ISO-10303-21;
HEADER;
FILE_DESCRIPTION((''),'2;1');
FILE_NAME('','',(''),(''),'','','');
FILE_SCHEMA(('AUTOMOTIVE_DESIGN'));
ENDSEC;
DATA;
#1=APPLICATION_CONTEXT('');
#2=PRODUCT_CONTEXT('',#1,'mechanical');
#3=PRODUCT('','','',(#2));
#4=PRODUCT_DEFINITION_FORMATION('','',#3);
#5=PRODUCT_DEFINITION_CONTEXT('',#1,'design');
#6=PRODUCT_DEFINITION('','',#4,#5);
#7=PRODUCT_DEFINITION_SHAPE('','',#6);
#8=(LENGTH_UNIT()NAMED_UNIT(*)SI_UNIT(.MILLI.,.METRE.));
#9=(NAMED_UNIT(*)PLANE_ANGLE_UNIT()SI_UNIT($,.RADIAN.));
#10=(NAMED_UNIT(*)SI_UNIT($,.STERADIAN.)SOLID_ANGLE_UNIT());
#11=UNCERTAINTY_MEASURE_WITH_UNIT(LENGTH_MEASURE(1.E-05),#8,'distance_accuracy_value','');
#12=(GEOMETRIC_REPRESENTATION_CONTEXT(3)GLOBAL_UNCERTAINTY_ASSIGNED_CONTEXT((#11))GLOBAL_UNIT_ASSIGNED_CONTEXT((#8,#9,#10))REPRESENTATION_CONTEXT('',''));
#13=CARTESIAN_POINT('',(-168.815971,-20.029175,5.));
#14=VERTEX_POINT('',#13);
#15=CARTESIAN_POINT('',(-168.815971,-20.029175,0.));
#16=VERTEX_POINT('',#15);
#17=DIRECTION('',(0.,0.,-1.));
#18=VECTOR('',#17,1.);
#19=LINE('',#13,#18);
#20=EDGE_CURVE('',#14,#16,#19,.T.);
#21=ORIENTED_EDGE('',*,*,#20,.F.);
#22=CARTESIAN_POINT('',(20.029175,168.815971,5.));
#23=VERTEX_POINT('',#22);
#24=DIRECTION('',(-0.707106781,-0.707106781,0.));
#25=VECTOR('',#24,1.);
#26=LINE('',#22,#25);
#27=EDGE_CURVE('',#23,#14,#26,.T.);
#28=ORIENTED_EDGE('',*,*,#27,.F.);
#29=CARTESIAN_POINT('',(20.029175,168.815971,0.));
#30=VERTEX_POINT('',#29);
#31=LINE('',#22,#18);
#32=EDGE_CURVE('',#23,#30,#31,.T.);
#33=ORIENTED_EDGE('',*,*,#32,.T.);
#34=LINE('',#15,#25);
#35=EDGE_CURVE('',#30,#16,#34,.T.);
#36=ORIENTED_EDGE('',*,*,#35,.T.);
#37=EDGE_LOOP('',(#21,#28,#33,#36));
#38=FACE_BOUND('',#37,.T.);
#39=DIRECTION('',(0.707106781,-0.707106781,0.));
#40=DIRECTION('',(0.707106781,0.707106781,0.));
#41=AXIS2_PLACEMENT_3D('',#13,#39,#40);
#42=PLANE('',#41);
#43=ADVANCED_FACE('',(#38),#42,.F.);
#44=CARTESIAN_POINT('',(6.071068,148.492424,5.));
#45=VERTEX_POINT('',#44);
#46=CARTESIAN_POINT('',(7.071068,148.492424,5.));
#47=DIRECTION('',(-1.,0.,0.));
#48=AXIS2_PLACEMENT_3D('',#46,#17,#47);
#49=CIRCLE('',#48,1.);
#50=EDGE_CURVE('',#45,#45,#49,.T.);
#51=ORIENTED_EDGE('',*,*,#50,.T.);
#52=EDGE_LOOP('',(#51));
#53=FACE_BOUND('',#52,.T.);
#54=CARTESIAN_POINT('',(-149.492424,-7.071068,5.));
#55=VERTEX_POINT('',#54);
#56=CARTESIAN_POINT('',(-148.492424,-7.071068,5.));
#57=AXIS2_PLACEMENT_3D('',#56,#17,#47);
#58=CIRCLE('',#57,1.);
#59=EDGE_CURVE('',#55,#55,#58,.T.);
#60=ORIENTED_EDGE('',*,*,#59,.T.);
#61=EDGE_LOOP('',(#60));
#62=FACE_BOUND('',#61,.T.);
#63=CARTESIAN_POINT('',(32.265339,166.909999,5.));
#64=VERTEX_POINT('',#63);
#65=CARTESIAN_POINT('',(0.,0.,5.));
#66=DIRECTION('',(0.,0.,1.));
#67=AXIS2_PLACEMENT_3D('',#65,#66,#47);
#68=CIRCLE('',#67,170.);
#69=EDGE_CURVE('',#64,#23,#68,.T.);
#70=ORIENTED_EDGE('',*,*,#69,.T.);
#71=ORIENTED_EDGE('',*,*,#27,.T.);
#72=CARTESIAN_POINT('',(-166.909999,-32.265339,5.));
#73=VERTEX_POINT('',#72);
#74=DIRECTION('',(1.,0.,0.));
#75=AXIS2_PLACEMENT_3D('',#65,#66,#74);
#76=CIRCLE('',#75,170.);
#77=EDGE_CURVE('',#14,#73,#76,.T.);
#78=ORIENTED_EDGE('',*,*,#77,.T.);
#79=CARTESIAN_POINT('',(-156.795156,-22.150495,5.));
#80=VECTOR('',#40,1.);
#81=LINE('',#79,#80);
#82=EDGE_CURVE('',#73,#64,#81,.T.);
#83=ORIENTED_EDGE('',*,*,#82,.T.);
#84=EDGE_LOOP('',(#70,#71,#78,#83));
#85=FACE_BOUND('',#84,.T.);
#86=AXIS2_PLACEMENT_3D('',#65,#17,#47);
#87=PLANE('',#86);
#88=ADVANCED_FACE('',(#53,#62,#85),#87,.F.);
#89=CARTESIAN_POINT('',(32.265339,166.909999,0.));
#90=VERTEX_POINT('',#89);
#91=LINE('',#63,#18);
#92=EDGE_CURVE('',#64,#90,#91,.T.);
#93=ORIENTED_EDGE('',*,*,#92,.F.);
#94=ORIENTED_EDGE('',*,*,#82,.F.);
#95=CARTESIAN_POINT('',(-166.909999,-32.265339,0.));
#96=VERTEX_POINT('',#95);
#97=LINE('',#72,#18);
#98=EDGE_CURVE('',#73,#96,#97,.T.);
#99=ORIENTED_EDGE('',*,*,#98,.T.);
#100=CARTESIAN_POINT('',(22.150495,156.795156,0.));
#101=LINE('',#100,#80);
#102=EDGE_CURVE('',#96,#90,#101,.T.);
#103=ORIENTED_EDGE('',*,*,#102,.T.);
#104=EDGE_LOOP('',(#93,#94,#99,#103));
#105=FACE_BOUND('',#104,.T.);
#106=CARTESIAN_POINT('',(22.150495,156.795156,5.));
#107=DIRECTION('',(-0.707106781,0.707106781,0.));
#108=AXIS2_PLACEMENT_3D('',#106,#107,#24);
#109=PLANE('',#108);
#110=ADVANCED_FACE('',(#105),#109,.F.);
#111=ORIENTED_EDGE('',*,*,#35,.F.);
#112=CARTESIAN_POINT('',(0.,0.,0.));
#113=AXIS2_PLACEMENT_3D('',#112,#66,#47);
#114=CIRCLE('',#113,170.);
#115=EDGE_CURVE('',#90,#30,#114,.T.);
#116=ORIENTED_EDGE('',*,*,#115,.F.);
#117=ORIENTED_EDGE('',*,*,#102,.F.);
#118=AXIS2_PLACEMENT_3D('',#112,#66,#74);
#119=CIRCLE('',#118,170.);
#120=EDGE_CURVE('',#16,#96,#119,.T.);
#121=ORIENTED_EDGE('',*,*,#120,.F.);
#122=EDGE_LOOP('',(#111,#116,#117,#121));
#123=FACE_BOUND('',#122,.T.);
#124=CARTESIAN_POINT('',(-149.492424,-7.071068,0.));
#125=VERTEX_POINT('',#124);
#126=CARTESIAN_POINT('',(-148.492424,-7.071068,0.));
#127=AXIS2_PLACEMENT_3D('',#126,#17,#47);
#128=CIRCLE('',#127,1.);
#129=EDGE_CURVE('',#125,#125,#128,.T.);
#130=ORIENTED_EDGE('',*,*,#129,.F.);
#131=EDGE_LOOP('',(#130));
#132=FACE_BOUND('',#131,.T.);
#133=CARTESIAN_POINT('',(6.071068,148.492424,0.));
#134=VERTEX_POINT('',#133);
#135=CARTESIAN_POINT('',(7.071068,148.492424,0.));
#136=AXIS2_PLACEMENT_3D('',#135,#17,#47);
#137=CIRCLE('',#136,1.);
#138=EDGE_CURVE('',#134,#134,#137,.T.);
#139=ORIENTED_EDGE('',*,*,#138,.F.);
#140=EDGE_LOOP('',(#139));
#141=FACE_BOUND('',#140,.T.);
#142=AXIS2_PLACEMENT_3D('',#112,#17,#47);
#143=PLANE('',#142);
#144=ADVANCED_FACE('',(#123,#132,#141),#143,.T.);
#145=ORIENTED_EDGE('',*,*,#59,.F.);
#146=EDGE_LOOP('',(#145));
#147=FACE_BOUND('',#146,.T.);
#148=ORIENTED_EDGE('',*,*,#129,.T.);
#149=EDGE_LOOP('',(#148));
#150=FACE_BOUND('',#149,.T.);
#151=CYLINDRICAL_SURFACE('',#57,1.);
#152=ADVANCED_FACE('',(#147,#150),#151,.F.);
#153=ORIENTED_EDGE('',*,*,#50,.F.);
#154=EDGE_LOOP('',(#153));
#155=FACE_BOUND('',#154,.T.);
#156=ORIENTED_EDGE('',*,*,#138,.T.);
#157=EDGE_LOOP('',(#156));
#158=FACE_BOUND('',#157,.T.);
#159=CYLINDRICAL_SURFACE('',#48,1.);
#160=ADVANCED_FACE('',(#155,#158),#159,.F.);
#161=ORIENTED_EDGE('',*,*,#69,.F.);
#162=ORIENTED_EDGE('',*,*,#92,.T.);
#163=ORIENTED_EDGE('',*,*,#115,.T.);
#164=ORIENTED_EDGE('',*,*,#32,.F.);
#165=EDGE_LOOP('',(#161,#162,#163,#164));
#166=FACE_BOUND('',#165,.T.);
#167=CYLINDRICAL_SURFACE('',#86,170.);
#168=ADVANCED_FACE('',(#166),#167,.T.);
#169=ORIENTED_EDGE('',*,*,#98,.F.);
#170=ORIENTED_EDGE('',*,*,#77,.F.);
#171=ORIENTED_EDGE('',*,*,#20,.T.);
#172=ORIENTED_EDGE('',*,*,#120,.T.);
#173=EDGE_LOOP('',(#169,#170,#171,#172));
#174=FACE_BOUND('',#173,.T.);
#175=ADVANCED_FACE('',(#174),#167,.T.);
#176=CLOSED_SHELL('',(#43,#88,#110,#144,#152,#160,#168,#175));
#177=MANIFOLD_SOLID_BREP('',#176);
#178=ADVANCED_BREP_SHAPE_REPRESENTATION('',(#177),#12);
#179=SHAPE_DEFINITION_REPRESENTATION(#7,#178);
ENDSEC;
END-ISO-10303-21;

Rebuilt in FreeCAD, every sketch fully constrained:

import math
import FreeCAD as App
import Part
import Sketcher
from FreeCAD import Vector
Q = App.Units.Quantity

doc = App.newDocument("Part")
body = doc.addObject("PartDesign::Body", "Body")

sketch1 = body.newObject("Sketcher::SketchObject", "Sketch")
sketch1.AttachmentSupport = (doc.getObject("XY_Plane"), [""])
sketch1.MapMode = "FlatFace"
sketch1.addGeometry([
    Part.LineSegment(Vector(20, 169, 0), Vector(15, 164, 0)),
    Part.LineSegment(Vector(15, 164, 0), Vector(-164, -15, 0)),
    Part.LineSegment(Vector(-164, -15, 0), Vector(-169, -20, 0)),
    Part.ArcOfCircle(Part.Circle(Vector(0, 0, 0), Vector(0, 0, 1), 170), math.radians(-173.23), math.radians(-169.06)),
    Part.LineSegment(Vector(-167, -32, 0), Vector(32, 167, 0)),
    Part.ArcOfCircle(Part.Circle(Vector(0, 0, 0), Vector(0, 0, 1), 170), math.radians(79.06), math.radians(83.23)),
], False)
sketch1.addConstraint([
    Sketcher.Constraint("Coincident", 0, 2, 1, 1),
    Sketcher.Constraint("Coincident", 1, 2, 2, 1),
    Sketcher.Constraint("Coincident", 2, 2, 3, 1),
    Sketcher.Constraint("Coincident", 3, 2, 4, 1),
    Sketcher.Constraint("Coincident", 4, 2, 5, 1),
    Sketcher.Constraint("Coincident", 5, 2, 0, 1),
    Sketcher.Constraint("Coincident", 3, 3, -1, 1),
    Sketcher.Constraint("Coincident", 5, 3, -1, 1),
    Sketcher.Constraint("Equal", 3, 5),
    Sketcher.Constraint("Parallel", 0, 1),
    Sketcher.Constraint("Parallel", 1, 2),
    Sketcher.Constraint("Parallel", 2, 4),
    Sketcher.Constraint("Equal", 0, 2),
    Sketcher.Constraint("Radius", 3, Q("170 mm")),
    Sketcher.Constraint("Angle", 0, Q("-135 deg")),
    Sketcher.Constraint("Distance", 0, Q("7 mm")),
    Sketcher.Constraint("DistanceX", 3, 2, -1, 1, Q("166.909999 mm")),
    Sketcher.Constraint("DistanceX", 2, 2, 0, 2, Q("183.895399 mm")),
])
pad1 = body.newObject("PartDesign::Pad", "Pad")
pad1.Profile = sketch1
pad1.Length = 5

sketch2 = body.newObject("Sketcher::SketchObject", "Sketch001")
sketch2.AttachmentSupport = (doc.getObject("XY_Plane"), [""])
sketch2.MapMode = "FlatFace"
sketch2.addGeometry([
    Part.Circle(Vector(-148.5, -7.1, 0), Vector(0, 0, 1), 1),
    Part.Circle(Vector(7.1, 148.5, 0), Vector(0, 0, 1), 1),
], False)
sketch2.addConstraint([
    Sketcher.Constraint("Equal", 0, 1),
    Sketcher.Constraint("Diameter", 0, Q("2 mm")),
    Sketcher.Constraint("DistanceX", 0, 3, 1, 3, Q("155.563492 mm")),
    Sketcher.Constraint("DistanceY", 0, 3, 1, 3, Q("155.563492 mm")),
    Sketcher.Constraint("DistanceX", 0, 3, -1, 1, Q("148.492424 mm")),
    Sketcher.Constraint("DistanceY", 0, 3, -1, 1, Q("7.071068 mm")),
])
pocket1 = body.newObject("PartDesign::Pocket", "Pocket")
pocket1.Profile = sketch2
pocket1.Type = "ThroughAll"
pocket1.Reversed = True

doc.recompute()
